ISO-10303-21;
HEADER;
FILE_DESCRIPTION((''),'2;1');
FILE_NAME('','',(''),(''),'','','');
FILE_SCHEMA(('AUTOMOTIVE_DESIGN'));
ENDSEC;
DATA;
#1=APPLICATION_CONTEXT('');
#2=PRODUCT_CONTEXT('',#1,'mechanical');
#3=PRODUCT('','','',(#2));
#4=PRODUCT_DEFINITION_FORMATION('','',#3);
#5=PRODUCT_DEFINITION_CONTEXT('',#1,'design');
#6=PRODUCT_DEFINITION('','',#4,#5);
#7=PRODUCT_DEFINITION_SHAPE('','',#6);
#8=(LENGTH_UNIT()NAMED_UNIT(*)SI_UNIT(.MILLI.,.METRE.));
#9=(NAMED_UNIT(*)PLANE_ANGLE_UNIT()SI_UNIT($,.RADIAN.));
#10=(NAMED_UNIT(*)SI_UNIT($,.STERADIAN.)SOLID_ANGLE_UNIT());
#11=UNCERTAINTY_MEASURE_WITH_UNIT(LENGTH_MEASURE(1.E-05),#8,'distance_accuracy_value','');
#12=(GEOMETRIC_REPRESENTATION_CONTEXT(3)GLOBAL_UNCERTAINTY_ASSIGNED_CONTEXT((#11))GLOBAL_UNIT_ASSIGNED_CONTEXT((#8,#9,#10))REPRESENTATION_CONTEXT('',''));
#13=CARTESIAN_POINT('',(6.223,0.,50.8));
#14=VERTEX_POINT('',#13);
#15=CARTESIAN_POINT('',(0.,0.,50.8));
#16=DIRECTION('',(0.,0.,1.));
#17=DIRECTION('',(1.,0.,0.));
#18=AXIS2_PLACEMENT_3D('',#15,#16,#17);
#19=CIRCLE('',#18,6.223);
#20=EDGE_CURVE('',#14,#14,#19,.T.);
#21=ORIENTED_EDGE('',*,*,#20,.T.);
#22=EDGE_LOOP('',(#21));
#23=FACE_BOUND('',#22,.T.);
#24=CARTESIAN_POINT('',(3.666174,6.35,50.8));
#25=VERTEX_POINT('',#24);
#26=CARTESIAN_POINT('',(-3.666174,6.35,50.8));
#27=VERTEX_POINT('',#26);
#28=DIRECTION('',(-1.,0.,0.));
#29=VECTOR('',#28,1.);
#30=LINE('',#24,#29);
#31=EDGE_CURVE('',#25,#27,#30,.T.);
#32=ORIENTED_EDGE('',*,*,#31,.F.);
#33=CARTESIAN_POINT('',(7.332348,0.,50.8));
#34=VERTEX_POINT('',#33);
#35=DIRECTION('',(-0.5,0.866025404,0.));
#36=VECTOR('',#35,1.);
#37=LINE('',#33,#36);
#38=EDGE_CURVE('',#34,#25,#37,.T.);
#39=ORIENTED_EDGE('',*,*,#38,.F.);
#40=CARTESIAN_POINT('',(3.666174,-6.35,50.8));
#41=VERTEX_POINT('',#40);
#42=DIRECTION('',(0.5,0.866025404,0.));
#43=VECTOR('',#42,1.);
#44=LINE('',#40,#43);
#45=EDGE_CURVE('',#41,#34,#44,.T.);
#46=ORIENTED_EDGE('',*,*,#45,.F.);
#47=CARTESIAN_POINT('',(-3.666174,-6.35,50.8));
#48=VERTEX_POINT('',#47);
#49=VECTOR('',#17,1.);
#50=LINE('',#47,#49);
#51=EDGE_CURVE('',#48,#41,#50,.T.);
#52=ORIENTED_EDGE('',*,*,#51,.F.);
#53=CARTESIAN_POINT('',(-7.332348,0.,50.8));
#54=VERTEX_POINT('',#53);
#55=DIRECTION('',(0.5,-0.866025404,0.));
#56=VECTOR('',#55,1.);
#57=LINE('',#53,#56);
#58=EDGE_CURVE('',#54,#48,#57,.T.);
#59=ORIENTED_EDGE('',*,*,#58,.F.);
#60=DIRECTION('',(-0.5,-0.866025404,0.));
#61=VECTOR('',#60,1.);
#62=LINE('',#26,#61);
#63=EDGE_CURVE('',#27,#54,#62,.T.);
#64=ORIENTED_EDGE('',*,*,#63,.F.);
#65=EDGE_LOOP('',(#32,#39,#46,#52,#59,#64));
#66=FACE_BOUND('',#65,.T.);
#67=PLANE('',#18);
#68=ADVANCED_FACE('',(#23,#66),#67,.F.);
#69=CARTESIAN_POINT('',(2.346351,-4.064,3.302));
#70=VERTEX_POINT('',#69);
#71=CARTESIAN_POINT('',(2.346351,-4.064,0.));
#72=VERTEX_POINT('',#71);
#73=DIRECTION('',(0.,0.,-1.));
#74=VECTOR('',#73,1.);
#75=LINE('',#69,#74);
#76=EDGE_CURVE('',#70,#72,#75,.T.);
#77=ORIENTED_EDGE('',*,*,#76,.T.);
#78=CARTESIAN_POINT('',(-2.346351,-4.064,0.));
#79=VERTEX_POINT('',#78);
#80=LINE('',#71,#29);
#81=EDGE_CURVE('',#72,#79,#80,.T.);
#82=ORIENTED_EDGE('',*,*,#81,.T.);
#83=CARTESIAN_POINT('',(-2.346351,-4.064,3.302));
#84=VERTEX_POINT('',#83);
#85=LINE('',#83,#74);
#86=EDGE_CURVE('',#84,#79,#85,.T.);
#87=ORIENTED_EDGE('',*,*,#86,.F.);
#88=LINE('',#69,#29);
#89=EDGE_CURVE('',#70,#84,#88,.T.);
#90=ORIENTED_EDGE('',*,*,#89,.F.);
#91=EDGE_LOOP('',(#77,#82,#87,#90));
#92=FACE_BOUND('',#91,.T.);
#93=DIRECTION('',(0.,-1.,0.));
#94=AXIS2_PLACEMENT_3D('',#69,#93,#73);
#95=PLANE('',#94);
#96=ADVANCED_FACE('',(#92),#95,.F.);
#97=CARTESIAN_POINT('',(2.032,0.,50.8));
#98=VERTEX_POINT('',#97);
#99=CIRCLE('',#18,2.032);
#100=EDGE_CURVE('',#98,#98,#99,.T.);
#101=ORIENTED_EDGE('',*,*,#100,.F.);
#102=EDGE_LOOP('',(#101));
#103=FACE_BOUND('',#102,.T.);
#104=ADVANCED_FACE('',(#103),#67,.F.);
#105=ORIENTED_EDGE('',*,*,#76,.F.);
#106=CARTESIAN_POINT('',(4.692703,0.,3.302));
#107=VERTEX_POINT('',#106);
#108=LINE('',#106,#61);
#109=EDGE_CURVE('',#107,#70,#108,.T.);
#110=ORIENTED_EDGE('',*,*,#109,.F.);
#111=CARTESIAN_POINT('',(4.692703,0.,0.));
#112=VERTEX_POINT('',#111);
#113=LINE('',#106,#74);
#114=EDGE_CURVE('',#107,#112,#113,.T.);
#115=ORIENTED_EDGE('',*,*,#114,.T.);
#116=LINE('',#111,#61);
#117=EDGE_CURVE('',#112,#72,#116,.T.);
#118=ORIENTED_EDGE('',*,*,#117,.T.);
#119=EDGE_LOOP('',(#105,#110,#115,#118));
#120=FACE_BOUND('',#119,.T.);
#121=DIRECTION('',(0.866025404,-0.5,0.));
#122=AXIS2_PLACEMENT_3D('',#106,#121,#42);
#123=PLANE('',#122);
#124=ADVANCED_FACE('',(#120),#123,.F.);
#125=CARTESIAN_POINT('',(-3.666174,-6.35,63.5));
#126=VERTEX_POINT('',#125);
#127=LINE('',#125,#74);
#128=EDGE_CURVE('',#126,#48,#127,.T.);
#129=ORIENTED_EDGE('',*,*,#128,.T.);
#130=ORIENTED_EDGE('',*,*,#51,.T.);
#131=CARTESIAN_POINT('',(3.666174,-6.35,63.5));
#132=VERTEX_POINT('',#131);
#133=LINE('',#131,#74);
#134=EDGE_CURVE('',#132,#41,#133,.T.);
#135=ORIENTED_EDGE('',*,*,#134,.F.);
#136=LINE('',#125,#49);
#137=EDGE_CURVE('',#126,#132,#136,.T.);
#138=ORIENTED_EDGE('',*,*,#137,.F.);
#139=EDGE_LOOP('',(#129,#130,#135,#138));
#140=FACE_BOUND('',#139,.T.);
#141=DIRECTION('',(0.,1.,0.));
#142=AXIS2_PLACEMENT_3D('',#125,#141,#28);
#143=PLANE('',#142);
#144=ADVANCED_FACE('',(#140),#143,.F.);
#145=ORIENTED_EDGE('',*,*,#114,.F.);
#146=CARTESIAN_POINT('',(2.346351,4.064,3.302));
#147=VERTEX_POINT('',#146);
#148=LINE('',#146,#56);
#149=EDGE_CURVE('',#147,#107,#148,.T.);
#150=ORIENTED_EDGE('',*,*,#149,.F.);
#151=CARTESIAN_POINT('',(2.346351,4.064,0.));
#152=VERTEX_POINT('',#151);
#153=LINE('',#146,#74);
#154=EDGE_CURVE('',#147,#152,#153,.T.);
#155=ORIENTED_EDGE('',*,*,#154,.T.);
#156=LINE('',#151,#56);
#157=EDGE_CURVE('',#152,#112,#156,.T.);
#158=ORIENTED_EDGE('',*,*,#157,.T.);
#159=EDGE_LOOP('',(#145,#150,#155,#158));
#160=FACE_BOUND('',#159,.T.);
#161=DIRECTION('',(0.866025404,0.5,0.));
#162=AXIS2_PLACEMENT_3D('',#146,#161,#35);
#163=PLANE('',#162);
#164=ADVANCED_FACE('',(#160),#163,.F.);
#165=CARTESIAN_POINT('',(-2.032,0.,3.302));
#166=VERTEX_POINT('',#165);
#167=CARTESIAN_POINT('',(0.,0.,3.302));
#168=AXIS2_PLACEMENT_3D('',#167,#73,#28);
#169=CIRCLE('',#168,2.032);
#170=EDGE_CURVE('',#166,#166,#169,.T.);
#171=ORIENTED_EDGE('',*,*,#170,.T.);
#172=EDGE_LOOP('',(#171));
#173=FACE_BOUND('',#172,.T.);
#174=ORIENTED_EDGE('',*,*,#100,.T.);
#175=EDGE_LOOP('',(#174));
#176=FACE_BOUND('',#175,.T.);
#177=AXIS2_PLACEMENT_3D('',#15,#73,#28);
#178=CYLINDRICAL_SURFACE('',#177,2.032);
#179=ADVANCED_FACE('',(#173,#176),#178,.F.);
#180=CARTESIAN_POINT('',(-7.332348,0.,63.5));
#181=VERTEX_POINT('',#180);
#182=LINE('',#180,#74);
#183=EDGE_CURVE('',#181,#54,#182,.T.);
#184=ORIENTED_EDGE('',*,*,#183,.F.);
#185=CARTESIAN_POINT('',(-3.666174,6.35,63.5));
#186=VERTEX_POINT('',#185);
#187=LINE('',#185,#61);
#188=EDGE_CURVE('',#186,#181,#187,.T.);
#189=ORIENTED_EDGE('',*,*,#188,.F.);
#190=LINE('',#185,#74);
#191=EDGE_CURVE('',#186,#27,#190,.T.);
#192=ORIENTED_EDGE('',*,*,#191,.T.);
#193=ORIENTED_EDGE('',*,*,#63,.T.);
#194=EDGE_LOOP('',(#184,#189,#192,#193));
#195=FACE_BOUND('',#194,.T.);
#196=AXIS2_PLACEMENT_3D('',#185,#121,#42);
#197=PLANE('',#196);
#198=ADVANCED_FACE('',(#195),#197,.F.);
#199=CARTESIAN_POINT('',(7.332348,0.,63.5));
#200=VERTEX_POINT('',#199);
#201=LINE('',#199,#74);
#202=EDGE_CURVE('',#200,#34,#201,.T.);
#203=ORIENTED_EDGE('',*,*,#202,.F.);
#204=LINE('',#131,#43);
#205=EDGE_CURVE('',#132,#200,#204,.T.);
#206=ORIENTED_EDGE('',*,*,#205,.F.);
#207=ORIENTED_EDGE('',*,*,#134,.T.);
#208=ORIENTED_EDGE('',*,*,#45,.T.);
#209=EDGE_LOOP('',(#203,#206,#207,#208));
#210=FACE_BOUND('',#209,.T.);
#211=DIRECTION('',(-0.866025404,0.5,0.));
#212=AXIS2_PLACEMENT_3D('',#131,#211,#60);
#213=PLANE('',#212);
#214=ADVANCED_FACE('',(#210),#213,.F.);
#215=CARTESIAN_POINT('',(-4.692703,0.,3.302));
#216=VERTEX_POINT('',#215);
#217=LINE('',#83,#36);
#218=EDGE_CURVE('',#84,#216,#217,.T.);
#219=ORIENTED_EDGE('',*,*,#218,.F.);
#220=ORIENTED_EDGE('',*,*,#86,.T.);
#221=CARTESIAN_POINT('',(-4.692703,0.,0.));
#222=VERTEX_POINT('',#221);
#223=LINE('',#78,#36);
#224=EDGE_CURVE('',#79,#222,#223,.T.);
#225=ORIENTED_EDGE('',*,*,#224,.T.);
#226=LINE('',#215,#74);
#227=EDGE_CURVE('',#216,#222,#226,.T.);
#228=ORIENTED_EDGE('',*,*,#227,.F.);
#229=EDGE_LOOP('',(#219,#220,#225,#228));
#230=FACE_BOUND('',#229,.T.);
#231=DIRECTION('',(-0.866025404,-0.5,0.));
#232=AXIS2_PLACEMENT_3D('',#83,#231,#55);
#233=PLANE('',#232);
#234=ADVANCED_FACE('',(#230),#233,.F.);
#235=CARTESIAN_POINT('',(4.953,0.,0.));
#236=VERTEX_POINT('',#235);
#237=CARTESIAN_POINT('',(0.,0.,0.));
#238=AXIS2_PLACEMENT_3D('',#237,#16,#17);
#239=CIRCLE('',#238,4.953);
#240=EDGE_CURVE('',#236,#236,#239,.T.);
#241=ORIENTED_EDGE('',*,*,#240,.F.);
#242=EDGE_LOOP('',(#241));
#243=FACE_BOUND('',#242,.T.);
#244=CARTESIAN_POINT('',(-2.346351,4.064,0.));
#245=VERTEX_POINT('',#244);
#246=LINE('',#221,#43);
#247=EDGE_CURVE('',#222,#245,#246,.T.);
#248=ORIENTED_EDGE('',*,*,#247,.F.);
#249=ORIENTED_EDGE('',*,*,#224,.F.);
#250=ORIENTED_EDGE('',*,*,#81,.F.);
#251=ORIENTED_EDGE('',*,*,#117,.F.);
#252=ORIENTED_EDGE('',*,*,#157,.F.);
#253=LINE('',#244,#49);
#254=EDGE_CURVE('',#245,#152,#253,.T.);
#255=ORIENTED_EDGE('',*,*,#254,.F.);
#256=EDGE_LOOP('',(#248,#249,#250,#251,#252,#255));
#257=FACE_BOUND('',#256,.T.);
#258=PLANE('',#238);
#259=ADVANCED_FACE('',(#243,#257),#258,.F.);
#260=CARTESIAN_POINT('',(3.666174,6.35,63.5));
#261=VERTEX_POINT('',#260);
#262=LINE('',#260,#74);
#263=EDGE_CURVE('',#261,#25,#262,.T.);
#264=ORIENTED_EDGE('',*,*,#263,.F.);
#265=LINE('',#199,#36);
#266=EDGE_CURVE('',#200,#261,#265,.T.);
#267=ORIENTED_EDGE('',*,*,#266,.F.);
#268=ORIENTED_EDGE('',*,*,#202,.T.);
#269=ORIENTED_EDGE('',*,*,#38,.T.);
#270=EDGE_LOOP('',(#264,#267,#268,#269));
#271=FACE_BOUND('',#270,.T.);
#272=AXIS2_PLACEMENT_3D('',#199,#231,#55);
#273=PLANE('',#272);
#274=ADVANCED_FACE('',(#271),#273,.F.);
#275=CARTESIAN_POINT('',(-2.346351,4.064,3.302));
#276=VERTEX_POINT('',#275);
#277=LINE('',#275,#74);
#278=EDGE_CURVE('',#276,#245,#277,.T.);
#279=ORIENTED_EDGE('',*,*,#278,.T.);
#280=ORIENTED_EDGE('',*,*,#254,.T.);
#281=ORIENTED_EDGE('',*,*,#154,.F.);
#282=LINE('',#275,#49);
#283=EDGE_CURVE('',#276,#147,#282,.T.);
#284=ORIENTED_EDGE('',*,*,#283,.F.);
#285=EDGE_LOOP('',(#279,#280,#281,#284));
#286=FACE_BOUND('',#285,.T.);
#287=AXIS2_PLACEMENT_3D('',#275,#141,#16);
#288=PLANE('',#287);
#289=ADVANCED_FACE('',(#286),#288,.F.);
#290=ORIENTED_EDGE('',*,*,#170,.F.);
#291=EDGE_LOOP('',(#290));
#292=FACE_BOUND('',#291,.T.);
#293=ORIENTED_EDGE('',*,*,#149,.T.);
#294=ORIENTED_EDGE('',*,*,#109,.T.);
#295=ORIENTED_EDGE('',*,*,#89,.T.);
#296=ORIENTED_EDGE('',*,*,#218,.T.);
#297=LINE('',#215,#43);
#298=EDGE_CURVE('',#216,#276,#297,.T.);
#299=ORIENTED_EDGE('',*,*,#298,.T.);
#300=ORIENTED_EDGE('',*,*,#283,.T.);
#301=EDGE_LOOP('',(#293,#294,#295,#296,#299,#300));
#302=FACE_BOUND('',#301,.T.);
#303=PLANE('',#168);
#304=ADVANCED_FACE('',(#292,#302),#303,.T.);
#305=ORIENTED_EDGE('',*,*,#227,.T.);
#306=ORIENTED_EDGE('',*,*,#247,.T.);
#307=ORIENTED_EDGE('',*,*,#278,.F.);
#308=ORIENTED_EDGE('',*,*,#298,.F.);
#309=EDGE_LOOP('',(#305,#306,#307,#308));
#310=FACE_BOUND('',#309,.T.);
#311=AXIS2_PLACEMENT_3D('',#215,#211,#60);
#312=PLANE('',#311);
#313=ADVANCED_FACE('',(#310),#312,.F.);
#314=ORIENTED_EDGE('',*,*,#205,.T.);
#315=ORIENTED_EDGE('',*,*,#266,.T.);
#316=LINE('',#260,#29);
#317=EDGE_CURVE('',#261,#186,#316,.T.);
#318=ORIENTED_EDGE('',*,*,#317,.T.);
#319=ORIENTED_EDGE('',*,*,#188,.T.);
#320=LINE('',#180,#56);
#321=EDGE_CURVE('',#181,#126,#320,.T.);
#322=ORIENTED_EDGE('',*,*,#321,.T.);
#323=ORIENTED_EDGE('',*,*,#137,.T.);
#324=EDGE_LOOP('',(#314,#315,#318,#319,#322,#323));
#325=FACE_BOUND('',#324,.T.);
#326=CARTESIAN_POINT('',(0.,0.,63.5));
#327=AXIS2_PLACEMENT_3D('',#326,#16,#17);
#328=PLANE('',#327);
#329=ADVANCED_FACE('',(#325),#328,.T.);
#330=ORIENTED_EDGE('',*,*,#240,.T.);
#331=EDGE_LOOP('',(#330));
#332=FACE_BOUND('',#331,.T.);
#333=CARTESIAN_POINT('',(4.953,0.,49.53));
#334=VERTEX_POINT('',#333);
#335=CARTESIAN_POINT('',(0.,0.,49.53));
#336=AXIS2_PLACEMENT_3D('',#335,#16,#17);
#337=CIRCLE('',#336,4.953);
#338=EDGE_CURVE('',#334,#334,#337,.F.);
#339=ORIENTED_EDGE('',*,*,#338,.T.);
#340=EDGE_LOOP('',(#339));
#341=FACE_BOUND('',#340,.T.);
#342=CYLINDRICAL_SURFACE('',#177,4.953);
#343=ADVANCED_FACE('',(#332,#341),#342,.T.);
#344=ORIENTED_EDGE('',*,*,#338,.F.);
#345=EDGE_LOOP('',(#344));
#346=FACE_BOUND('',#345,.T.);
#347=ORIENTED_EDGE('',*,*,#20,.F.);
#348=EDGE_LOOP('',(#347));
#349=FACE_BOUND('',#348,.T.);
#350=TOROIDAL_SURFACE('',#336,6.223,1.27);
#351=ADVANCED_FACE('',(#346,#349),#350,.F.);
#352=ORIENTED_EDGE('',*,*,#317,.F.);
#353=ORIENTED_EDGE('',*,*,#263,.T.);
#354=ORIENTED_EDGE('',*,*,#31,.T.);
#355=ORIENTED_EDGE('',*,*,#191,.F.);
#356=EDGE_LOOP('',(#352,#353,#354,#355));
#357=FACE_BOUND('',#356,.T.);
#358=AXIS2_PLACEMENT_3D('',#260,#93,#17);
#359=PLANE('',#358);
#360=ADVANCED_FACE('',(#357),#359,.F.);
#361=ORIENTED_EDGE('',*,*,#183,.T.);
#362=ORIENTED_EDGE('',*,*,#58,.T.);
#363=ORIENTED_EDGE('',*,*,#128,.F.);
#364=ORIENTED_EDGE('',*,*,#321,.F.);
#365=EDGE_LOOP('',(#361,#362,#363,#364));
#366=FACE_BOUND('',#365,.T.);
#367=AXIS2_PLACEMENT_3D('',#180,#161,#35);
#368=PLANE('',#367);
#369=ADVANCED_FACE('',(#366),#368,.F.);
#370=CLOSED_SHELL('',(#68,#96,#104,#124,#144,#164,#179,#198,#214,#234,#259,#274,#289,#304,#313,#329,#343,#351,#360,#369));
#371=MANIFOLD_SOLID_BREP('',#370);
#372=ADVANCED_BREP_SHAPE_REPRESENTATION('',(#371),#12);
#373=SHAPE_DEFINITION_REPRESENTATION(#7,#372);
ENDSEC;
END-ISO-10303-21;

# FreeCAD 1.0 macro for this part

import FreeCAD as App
import Part
import Sketcher
from FreeCAD import Vector
Q = App.Units.Quantity


def edges_at(feature, points):
    """Names of the edges that pass closest to the given points."""
    edges = feature.Shape.Edges
    near = lambda p: min(range(len(edges)), key=lambda i: edges[i].distToShape(Part.Vertex(*p))[0])
    return sorted({f"Edge{near(p) + 1}" for p in points})

doc = App.newDocument("Part")
body = doc.addObject("PartDesign::Body", "Body")

# Sketch on XY plane
sketch1 = body.newObject("Sketcher::SketchObject", "Sketch")
sketch1.AttachmentSupport = (doc.getObject("XY_Plane"), [""])
sketch1.MapMode = "FlatFace"
sketch1.addGeometry(Part.Circle(Vector(0, 0, 0), Vector(0, 0, 1), 4.953), False)
sketch1.addGeometry(Part.Circle(Vector(0, 0, 0), Vector(0, 0, 1), 2.032), False)
sketch1.addConstraint(Sketcher.Constraint("Coincident", 0, 3, -1, 1))
sketch1.addConstraint(Sketcher.Constraint("Coincident", 1, 3, -1, 1))
sketch1.addConstraint(Sketcher.Constraint("Diameter", 0, Q("0.39 in")))
sketch1.addConstraint(Sketcher.Constraint("Diameter", 1, Q("0.16 in")))
pad1 = body.newObject("PartDesign::Pad", "Pad")
pad1.Profile = sketch1
pad1.Length = Q("2 in")

# Sketch on XY plane
sketch2 = body.newObject("Sketcher::SketchObject", "Sketch001")
sketch2.AttachmentSupport = (doc.getObject("XY_Plane"), [""])
sketch2.MapMode = "FlatFace"
sketch2.addGeometry(Part.LineSegment(Vector(-4.692703, 0, 0), Vector(-2.346351, 4.064, 0)), False)
sketch2.addGeometry(Part.LineSegment(Vector(-2.346351, 4.064, 0), Vector(2.346351, 4.064, 0)), False)
sketch2.addGeometry(Part.LineSegment(Vector(2.346351, 4.064, 0), Vector(4.692703, 0, 0)), False)
sketch2.addGeometry(Part.LineSegment(Vector(4.692703, 0, 0), Vector(2.346351, -4.064, 0)), False)
sketch2.addGeometry(Part.LineSegment(Vector(2.346351, -4.064, 0), Vector(-2.346351, -4.064, 0)), False)
sketch2.addGeometry(Part.LineSegment(Vector(-2.346351, -4.064, 0), Vector(-4.692703, 0, 0)), False)
sketch2.addConstraint(Sketcher.Constraint("Coincident", 0, 2, 1, 1))
sketch2.addConstraint(Sketcher.Constraint("Coincident", 1, 2, 2, 1))
sketch2.addConstraint(Sketcher.Constraint("Coincident", 2, 2, 3, 1))
sketch2.addConstraint(Sketcher.Constraint("Coincident", 3, 2, 4, 1))
sketch2.addConstraint(Sketcher.Constraint("Coincident", 4, 2, 5, 1))
sketch2.addConstraint(Sketcher.Constraint("Coincident", 5, 2, 0, 1))
sketch2.addConstraint(Sketcher.Constraint("Horizontal", 1))
sketch2.addConstraint(Sketcher.Constraint("Horizontal", 4))
sketch2.addConstraint(Sketcher.Constraint("Symmetric", 0, 2, 3, 2, -1, 1))
sketch2.addConstraint(Sketcher.Constraint("Symmetric", 2, 2, 5, 2, -1, 1))
sketch2.addConstraint(Sketcher.Constraint("PointOnObject", 2, 2, -1))
sketch2.addConstraint(Sketcher.Constraint("Parallel", 2, 5))
sketch2.addConstraint(Sketcher.Constraint("Vertical", 1, 2, 3, 2))
sketch2.addConstraint(Sketcher.Constraint("Angle", 0, Q("60 deg")))
sketch2.addConstraint(Sketcher.Constraint("DistanceY", -1, 1, 0, 2, Q("0.16 in")))
sketch2.addConstraint(Sketcher.Constraint("DistanceX", 1, 1, 1, 2, Q("4.692703 mm")))
pocket1 = body.newObject("PartDesign::Pocket", "Pocket")
pocket1.Profile = sketch2
pocket1.Length = Q("0.13 in")
pocket1.Reversed = True

# Sketch on XY plane
sketch3 = body.newObject("Sketcher::SketchObject", "Sketch002")
sketch3.AttachmentSupport = (doc.getObject("XY_Plane"), [""])
sketch3.MapMode = "FlatFace"
sketch3.AttachmentOffset = App.Placement(Vector(0, 0, 2 * 25.4), App.Rotation())
sketch3.addGeometry(Part.LineSegment(Vector(7.332348, 0, 0), Vector(3.666174, 6.35, 0)), False)
sketch3.addGeometry(Part.LineSegment(Vector(3.666174, 6.35, 0), Vector(-3.666174, 6.35, 0)), False)
sketch3.addGeometry(Part.LineSegment(Vector(-3.666174, 6.35, 0), Vector(-7.332348, 0, 0)), False)
sketch3.addGeometry(Part.LineSegment(Vector(-7.332348, 0, 0), Vector(-3.666174, -6.35, 0)), False)
sketch3.addGeometry(Part.LineSegment(Vector(-3.666174, -6.35, 0), Vector(3.666174, -6.35, 0)), False)
sketch3.addGeometry(Part.LineSegment(Vector(3.666174, -6.35, 0), Vector(7.332348, 0, 0)), False)
sketch3.addConstraint(Sketcher.Constraint("Coincident", 0, 2, 1, 1))
sketch3.addConstraint(Sketcher.Constraint("Coincident", 1, 2, 2, 1))
sketch3.addConstraint(Sketcher.Constraint("Coincident", 2, 2, 3, 1))
sketch3.addConstraint(Sketcher.Constraint("Coincident", 3, 2, 4, 1))
sketch3.addConstraint(Sketcher.Constraint("Coincident", 4, 2, 5, 1))
sketch3.addConstraint(Sketcher.Constraint("Coincident", 5, 2, 0, 1))
sketch3.addConstraint(Sketcher.Constraint("Horizontal", 1))
sketch3.addConstraint(Sketcher.Constraint("Horizontal", 4))
sketch3.addConstraint(Sketcher.Constraint("Symmetric", 0, 2, 3, 2, -1, 1))
sketch3.addConstraint(Sketcher.Constraint("Symmetric", 2, 2, 5, 2, -1, 1))
sketch3.addConstraint(Sketcher.Constraint("PointOnObject", 2, 2, -1))
sketch3.addConstraint(Sketcher.Constraint("Parallel", 2, 5))
sketch3.addConstraint(Sketcher.Constraint("Vertical", 1, 2, 3, 2))
sketch3.addConstraint(Sketcher.Constraint("Angle", 0, Q("120 deg")))
sketch3.addConstraint(Sketcher.Constraint("DistanceY", 3, 2, 1, 2, Q("0.5 in")))
sketch3.addConstraint(Sketcher.Constraint("DistanceX", 1, 2, 1, 1, Q("7.332348 mm")))
pad2 = body.newObject("PartDesign::Pad", "Pad001")
pad2.Profile = sketch3
pad2.Length = Q("0.5 in")
doc.recompute()

fillet = body.newObject("PartDesign::Fillet", "Fillet")
fillet.Base = (pad2, edges_at(pad2, [(-4.953, 0, 50.8)]))
fillet.Radius = Q("0.05 in")

doc.recompute()
